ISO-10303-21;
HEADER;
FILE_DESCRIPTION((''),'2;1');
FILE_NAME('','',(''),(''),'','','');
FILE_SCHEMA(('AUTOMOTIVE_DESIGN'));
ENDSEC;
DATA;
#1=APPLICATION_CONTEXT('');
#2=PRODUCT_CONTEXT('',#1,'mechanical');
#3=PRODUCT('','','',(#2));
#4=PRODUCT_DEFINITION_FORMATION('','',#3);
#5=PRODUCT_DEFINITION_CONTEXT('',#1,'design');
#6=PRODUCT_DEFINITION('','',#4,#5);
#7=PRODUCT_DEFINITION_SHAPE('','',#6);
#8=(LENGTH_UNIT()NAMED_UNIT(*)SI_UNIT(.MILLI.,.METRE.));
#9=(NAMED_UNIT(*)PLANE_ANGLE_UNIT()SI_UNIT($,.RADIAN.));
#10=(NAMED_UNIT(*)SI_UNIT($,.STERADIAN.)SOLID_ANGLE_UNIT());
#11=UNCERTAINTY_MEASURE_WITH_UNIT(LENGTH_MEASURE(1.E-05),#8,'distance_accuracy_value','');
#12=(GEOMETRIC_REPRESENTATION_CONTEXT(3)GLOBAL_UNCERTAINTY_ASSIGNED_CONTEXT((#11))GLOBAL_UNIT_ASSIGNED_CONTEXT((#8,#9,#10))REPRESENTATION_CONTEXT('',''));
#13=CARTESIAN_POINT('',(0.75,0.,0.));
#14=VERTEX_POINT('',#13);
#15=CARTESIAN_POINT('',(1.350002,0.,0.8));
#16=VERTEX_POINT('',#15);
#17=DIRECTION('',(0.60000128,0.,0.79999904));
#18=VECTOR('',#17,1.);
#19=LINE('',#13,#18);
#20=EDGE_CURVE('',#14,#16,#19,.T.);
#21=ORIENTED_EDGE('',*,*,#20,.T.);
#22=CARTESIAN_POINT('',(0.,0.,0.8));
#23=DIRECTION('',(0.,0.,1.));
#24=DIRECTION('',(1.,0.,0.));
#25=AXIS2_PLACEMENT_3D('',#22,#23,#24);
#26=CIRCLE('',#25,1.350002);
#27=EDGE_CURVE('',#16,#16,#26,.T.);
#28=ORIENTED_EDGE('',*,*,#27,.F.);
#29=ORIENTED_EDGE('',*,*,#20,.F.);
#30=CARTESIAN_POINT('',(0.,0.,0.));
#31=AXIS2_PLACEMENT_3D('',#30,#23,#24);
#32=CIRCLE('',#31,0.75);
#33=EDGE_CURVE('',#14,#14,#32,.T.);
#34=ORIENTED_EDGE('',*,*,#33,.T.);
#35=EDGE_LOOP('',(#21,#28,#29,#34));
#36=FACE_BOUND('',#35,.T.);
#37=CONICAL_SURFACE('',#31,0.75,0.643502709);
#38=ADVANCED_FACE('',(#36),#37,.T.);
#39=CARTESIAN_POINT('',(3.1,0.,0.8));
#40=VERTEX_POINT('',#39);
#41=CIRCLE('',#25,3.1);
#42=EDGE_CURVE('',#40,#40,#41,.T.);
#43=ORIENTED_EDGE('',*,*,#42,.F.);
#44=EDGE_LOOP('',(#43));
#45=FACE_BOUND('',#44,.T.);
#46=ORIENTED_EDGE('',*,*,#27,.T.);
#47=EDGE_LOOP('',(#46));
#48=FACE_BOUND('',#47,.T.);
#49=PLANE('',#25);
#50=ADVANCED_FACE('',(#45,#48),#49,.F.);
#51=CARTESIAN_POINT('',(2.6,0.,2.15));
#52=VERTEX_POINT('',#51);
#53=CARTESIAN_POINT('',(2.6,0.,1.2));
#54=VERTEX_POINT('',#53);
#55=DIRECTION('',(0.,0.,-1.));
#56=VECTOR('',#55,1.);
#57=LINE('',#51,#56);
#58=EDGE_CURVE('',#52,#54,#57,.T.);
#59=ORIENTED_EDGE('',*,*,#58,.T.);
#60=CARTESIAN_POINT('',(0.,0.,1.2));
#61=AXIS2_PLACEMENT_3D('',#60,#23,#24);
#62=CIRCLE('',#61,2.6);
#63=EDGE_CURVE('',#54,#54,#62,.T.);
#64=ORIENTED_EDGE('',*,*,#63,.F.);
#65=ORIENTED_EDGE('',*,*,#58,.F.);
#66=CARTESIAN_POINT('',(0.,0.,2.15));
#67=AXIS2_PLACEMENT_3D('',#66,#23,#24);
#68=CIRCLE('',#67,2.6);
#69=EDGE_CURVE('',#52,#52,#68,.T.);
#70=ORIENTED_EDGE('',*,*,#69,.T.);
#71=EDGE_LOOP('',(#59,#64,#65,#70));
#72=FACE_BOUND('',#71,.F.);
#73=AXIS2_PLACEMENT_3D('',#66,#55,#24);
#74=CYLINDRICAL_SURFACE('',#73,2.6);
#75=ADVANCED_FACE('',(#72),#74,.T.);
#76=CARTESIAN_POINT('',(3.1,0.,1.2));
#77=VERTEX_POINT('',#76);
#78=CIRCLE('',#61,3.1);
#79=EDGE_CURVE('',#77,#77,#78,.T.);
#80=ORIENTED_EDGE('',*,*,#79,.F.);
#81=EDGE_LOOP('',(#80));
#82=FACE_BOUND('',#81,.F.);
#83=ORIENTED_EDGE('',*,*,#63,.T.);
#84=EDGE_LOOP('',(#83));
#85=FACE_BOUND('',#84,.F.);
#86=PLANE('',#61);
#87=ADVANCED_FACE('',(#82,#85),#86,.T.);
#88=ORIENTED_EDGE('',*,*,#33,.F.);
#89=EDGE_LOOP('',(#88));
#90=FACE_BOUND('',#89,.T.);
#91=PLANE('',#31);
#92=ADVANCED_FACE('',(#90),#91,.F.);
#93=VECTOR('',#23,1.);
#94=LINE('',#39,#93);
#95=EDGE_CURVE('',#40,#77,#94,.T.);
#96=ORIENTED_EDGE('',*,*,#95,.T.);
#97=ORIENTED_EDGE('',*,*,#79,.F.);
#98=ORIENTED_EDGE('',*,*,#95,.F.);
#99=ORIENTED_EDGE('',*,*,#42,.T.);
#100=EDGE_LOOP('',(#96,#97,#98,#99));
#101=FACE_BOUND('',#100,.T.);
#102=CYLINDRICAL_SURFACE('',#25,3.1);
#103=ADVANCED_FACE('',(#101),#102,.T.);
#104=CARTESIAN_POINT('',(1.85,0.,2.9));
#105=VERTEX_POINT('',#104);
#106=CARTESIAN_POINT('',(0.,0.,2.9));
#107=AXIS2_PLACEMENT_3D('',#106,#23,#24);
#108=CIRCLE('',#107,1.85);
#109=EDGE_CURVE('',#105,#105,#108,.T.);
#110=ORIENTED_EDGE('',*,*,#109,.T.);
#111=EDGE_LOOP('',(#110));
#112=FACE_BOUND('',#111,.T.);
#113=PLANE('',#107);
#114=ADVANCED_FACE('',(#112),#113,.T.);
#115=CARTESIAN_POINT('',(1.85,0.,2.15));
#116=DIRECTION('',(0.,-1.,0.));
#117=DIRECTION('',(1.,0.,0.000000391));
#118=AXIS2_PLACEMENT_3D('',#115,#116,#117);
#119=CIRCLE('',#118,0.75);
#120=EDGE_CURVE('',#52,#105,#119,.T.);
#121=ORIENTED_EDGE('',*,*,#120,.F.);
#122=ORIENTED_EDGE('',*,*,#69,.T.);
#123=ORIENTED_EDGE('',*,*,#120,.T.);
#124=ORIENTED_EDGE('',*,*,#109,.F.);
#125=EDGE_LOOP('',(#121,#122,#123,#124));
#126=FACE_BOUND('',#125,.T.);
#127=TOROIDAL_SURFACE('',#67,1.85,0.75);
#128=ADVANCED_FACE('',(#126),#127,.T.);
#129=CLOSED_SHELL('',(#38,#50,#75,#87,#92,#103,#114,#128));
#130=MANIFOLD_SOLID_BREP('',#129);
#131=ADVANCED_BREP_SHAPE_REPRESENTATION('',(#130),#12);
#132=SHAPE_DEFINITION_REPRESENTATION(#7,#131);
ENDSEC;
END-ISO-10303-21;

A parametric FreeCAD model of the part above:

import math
import FreeCAD as App
import Part
import Sketcher

doc = App.newDocument("Part")
body = doc.addObject("PartDesign::Body", "Body")

# Sketch on XZ plane
sketch1 = body.newObject("Sketcher::SketchObject", "Sketch")
sketch1.AttachmentSupport = (doc.getObject("XZ_Plane"), [""])
sketch1.MapMode = "FlatFace"
sketch1.addGeometry([
    Part.LineSegment(App.Vector(0, 0, 0), App.Vector(0.75, 0, 0)),  # 0
    Part.LineSegment(App.Vector(0.75, 0, 0), App.Vector(1.350002, 0.8, 0)),  # 1
    Part.LineSegment(App.Vector(1.350002, 0.8, 0), App.Vector(3.1, 0.8, 0)),  # 2
    Part.LineSegment(App.Vector(3.1, 0.8, 0), App.Vector(3.1, 1.2, 0)),  # 3
    Part.LineSegment(App.Vector(3.1, 1.2, 0), App.Vector(2.6, 1.2, 0)),  # 4
    Part.LineSegment(App.Vector(2.6, 1.2, 0), App.Vector(2.6, 2.15, 0)),  # 5
    Part.ArcOfCircle(Part.Circle(App.Vector(1.85, 2.15, 0), App.Vector(0, 0, 1), 0.75), math.radians(0.000022), math.radians(89.999978)),  # 6
    Part.LineSegment(App.Vector(1.85, 2.9, 0), App.Vector(0, 2.9, 0)),  # 7
    Part.LineSegment(App.Vector(0, 2.9, 0), App.Vector(0, 0, 0)),  # 8
], False)
sketch1.addConstraint([
    Sketcher.Constraint("Coincident", 0, 2, 1, 1),
    Sketcher.Constraint("Coincident", 1, 2, 2, 1),
    Sketcher.Constraint("Coincident", 2, 2, 3, 1),
    Sketcher.Constraint("Coincident", 3, 2, 4, 1),
    Sketcher.Constraint("Coincident", 4, 2, 5, 1),
    Sketcher.Constraint("Tangent", 5, 2, 6, 1),
    Sketcher.Constraint("Tangent", 6, 2, 7, 1),
    Sketcher.Constraint("Coincident", 7, 2, 8, 1),
    Sketcher.Constraint("Coincident", 8, 2, 0, 1),
    Sketcher.Constraint("Horizontal", 0),
    Sketcher.Constraint("Horizontal", 2),
    Sketcher.Constraint("Vertical", 3),
    Sketcher.Constraint("Horizontal", 4),
    Sketcher.Constraint("Vertical", 5),
    Sketcher.Constraint("Horizontal", 7),
    Sketcher.Constraint("Vertical", 8),
    Sketcher.Constraint("Coincident", 8, 2, -1, 1),
    Sketcher.Constraint("Radius", 6, 0.75),
    Sketcher.Constraint("Distance", 1, 1.000001),
    Sketcher.Constraint("DistanceX", 4, 2, 4, 1, 0.5),
    Sketcher.Constraint("DistanceY", 3, 1, 3, 2, 0.4),
    Sketcher.Constraint("DistanceY", 8, 2, 8, 1, 2.9),
    Sketcher.Constraint("DistanceX", 0, 1, 0, 2, 0.75),
    Sketcher.Constraint("DistanceX", 2, 1, 2, 2, 1.749998),
    Sketcher.Constraint("DistanceX", 7, 2, 7, 1, 1.85),
])
revolution = body.newObject("PartDesign::Revolution", "Revolution")
revolution.Profile = sketch1
revolution.ReferenceAxis = (sketch1, ["V_Axis"])
revolution.Angle = 360

doc.recompute()
